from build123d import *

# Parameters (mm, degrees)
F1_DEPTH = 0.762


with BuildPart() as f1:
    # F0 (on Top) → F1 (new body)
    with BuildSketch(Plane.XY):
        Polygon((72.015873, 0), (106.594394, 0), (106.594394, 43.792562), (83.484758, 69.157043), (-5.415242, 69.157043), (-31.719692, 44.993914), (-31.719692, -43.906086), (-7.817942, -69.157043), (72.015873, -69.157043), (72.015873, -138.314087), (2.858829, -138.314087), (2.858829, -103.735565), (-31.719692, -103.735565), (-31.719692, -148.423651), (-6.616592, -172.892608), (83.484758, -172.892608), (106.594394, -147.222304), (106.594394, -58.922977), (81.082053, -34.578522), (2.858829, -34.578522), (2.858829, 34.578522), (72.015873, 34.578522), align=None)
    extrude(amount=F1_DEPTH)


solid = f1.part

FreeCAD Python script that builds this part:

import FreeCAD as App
import Part
import Sketcher

V = App.Vector
Q = App.Units.Quantity

doc = App.newDocument("Part")
body = doc.addObject("PartDesign::Body", "Body")

# Sketch on XY plane
sketch1 = body.newObject("Sketcher::SketchObject", "Sketch")
sketch1.AttachmentSupport = (doc.getObject("XY_Plane"), [""])
sketch1.MapMode = "FlatFace"
sketch1.addGeometry(Part.LineSegment(V(72.015873, 0, 0), V(106.594394, 0, 0)), False)
sketch1.addGeometry(Part.LineSegment(V(106.594394, 0, 0), V(106.594394, 43.792562, 0)), False)
sketch1.addGeometry(Part.LineSegment(V(106.594394, 43.792562, 0), V(83.484758, 69.157043, 0)), False)
sketch1.addGeometry(Part.LineSegment(V(83.484758, 69.157043, 0), V(-5.415242, 69.157043, 0)), False)
sketch1.addGeometry(Part.LineSegment(V(-5.415242, 69.157043, 0), V(-31.719692, 44.993914, 0)), False)
sketch1.addGeometry(Part.LineSegment(V(-31.719692, 44.993914, 0), V(-31.719692, -43.906086, 0)), False)
sketch1.addGeometry(Part.LineSegment(V(-31.719692, -43.906086, 0), V(-7.817942, -69.157043, 0)), False)
sketch1.addGeometry(Part.LineSegment(V(-7.817942, -69.157043, 0), V(72.015873, -69.157043, 0)), False)
sketch1.addGeometry(Part.LineSegment(V(72.015873, -69.157043, 0), V(72.015873, -138.314087, 0)), False)
sketch1.addGeometry(Part.LineSegment(V(72.015873, -138.314087, 0), V(2.858829, -138.314087, 0)), False)
sketch1.addGeometry(Part.LineSegment(V(2.858829, -138.314087, 0), V(2.858829, -103.735565, 0)), False)
sketch1.addGeometry(Part.LineSegment(V(2.858829, -103.735565, 0), V(-31.719692, -103.735565, 0)), False)
sketch1.addGeometry(Part.LineSegment(V(-31.719692, -103.735565, 0), V(-31.719692, -148.423651, 0)), False)
sketch1.addGeometry(Part.LineSegment(V(-31.719692, -148.423651, 0), V(-6.616592, -172.892608, 0)), False)
sketch1.addGeometry(Part.LineSegment(V(-6.616592, -172.892608, 0), V(83.484758, -172.892608, 0)), False)
sketch1.addGeometry(Part.LineSegment(V(83.484758, -172.892608, 0), V(106.594394, -147.222304, 0)), False)
sketch1.addGeometry(Part.LineSegment(V(106.594394, -147.222304, 0), V(106.594394, -58.922977, 0)), False)
sketch1.addGeometry(Part.LineSegment(V(106.594394, -58.922977, 0), V(81.082053, -34.578522, 0)), False)
sketch1.addGeometry(Part.LineSegment(V(81.082053, -34.578522, 0), V(2.858829, -34.578522, 0)), False)
sketch1.addGeometry(Part.LineSegment(V(2.858829, -34.578522, 0), V(2.858829, 34.578522, 0)), False)
sketch1.addGeometry(Part.LineSegment(V(2.858829, 34.578522, 0), V(72.015873, 34.578522, 0)), False)
sketch1.addGeometry(Part.LineSegment(V(72.015873, 34.578522, 0), V(72.015873, 0, 0)), False)
sketch1.addConstraint(Sketcher.Constraint("Coincident", 0, 2, 1, 1))
sketch1.addConstraint(Sketcher.Constraint("Coincident", 1, 2, 2, 1))
sketch1.addConstraint(Sketcher.Constraint("Coincident", 2, 2, 3, 1))
sketch1.addConstraint(Sketcher.Constraint("Coincident", 3, 2, 4, 1))
sketch1.addConstraint(Sketcher.Constraint("Coincident", 4, 2, 5, 1))
sketch1.addConstraint(Sketcher.Constraint("Coincident", 5, 2, 6, 1))
sketch1.addConstraint(Sketcher.Constraint("Coincident", 6, 2, 7, 1))
sketch1.addConstraint(Sketcher.Constraint("Coincident", 7, 2, 8, 1))
sketch1.addConstraint(Sketcher.Constraint("Coincident", 8, 2, 9, 1))
sketch1.addConstraint(Sketcher.Constraint("Coincident", 9, 2, 10, 1))
sketch1.addConstraint(Sketcher.Constraint("Coincident", 10, 2, 11, 1))
sketch1.addConstraint(Sketcher.Constraint("Coincident", 11, 2, 12, 1))
sketch1.addConstraint(Sketcher.Constraint("Coincident", 12, 2, 13, 1))
sketch1.addConstraint(Sketcher.Constraint("Coincident", 13, 2, 14, 1))
sketch1.addConstraint(Sketcher.Constraint("Coincident", 14, 2, 15, 1))
sketch1.addConstraint(Sketcher.Constraint("Coincident", 15, 2, 16, 1))
sketch1.addConstraint(Sketcher.Constraint("Coincident", 16, 2, 17, 1))
sketch1.addConstraint(Sketcher.Constraint("Coincident", 17, 2, 18, 1))
sketch1.addConstraint(Sketcher.Constraint("Coincident", 18, 2, 19, 1))
sketch1.addConstraint(Sketcher.Constraint("Coincident", 19, 2, 20, 1))
sketch1.addConstraint(Sketcher.Constraint("Coincident", 20, 2, 21, 1))
sketch1.addConstraint(Sketcher.Constraint("Coincident", 21, 2, 0, 1))
sketch1.addConstraint(Sketcher.Constraint("Horizontal", 0))
sketch1.addConstraint(Sketcher.Constraint("Vertical", 1))
sketch1.addConstraint(Sketcher.Constraint("Horizontal", 3))
sketch1.addConstraint(Sketcher.Constraint("Vertical", 5))
sketch1.addConstraint(Sketcher.Constraint("Horizontal", 7))
sketch1.addConstraint(Sketcher.Constraint("Vertical", 8))
sketch1.addConstraint(Sketcher.Constraint("Horizontal", 9))
sketch1.addConstraint(Sketcher.Constraint("Vertical", 10))
sketch1.addConstraint(Sketcher.Constraint("Horizontal", 11))
sketch1.addConstraint(Sketcher.Constraint("Vertical", 12))
sketch1.addConstraint(Sketcher.Constraint("Horizontal", 14))
sketch1.addConstraint(Sketcher.Constraint("Vertical", 16))
sketch1.addConstraint(Sketcher.Constraint("Horizontal", 18))
sketch1.addConstraint(Sketcher.Constraint("Vertical", 19))
sketch1.addConstraint(Sketcher.Constraint("Horizontal", 20))
sketch1.addConstraint(Sketcher.Constraint("Vertical", 21))
sketch1.addConstraint(Sketcher.Constraint("PointOnObject", 0, 2, -1))
sketch1.addConstraint(Sketcher.Constraint("Vertical", 5, 2, 11, 2))
sketch1.addConstraint(Sketcher.Constraint("Vertical", 2, 2, 14, 2))
sketch1.addConstraint(Sketcher.Constraint("Vertical", 1, 2, 15, 2))
sketch1.addConstraint(Sketcher.Constraint("Vertical", 10, 2, 18, 2))
sketch1.addConstraint(Sketcher.Constraint("Vertical", 8, 2, 20, 2))
sketch1.addConstraint(Sketcher.Constraint("Equal", 0, 11))
sketch1.addConstraint(Sketcher.Constraint("Equal", 3, 5))
sketch1.addConstraint(Sketcher.Constraint("Equal", 20, 8))
sketch1.addConstraint(Sketcher.Constraint("Equal", 11, 10))
sketch1.addConstraint(Sketcher.Constraint("Equal", 8, 19))
sketch1.addConstraint(Sketcher.Constraint("Equal", 10, 21))
sketch1.addConstraint(Sketcher.Constraint("DistanceX", 3, 2, 3, 1, Q("3.5 in")))
sketch1.addConstraint(Sketcher.Constraint("DistanceX", 6, 2, 17, 2, Q("3.4999998 in")))
sketch1.addConstraint(Sketcher.Constraint("DistanceX", 0, 1, 0, 2, Q("34.578521 mm")))
sketch1.addConstraint(Sketcher.Constraint("DistanceX", 14, 1, 14, 2, Q("90.10135 mm")))
sketch1.addConstraint(Sketcher.Constraint("DistanceY", 1, 1, 1, 2, Q("43.792562 mm")))
sketch1.addConstraint(Sketcher.Constraint("DistanceX", 6, 2, 3, 2, Q("2.4027 mm")))
sketch1.addConstraint(Sketcher.Constraint("DistanceY", 8, 2, 5, 2, Q("94.408001 mm")))
sketch1.addConstraint(Sketcher.Constraint("DistanceX", 12, 2, 13, 2, Q("25.1031 mm")))
sketch1.addConstraint(Sketcher.Constraint("Distance", 2, Q("34.31344 mm")))
sketch1.addConstraint(Sketcher.Constraint("Distance", 15, Q("34.540118 mm")))
sketch1.addConstraint(Sketcher.Constraint("Distance", 17, Q("35.26375 mm")))
sketch1.addConstraint(Sketcher.Constraint("DistanceX", 7, 1, 7, 2, Q("79.833815 mm")))
sketch1.addConstraint(Sketcher.Constraint("DistanceY", 12, 2, 12, 1, Q("44.688086 mm")))
sketch1.addConstraint(Sketcher.Constraint("DistanceY", 16, 1, 16, 2, Q("88.299327 mm")))
sketch1.addConstraint(Sketcher.Constraint("DistanceX", -1, 1, 2, 2, Q("83.484758 mm")))
sketch1.addConstraint(Sketcher.Constraint("DistanceY", 12, 2, -1, 1, Q("148.423651 mm")))
pad1 = body.newObject("PartDesign::Pad", "Pad")
pad1.Profile = sketch1
pad1.Length = Q("0.03 in")

doc.recompute()
